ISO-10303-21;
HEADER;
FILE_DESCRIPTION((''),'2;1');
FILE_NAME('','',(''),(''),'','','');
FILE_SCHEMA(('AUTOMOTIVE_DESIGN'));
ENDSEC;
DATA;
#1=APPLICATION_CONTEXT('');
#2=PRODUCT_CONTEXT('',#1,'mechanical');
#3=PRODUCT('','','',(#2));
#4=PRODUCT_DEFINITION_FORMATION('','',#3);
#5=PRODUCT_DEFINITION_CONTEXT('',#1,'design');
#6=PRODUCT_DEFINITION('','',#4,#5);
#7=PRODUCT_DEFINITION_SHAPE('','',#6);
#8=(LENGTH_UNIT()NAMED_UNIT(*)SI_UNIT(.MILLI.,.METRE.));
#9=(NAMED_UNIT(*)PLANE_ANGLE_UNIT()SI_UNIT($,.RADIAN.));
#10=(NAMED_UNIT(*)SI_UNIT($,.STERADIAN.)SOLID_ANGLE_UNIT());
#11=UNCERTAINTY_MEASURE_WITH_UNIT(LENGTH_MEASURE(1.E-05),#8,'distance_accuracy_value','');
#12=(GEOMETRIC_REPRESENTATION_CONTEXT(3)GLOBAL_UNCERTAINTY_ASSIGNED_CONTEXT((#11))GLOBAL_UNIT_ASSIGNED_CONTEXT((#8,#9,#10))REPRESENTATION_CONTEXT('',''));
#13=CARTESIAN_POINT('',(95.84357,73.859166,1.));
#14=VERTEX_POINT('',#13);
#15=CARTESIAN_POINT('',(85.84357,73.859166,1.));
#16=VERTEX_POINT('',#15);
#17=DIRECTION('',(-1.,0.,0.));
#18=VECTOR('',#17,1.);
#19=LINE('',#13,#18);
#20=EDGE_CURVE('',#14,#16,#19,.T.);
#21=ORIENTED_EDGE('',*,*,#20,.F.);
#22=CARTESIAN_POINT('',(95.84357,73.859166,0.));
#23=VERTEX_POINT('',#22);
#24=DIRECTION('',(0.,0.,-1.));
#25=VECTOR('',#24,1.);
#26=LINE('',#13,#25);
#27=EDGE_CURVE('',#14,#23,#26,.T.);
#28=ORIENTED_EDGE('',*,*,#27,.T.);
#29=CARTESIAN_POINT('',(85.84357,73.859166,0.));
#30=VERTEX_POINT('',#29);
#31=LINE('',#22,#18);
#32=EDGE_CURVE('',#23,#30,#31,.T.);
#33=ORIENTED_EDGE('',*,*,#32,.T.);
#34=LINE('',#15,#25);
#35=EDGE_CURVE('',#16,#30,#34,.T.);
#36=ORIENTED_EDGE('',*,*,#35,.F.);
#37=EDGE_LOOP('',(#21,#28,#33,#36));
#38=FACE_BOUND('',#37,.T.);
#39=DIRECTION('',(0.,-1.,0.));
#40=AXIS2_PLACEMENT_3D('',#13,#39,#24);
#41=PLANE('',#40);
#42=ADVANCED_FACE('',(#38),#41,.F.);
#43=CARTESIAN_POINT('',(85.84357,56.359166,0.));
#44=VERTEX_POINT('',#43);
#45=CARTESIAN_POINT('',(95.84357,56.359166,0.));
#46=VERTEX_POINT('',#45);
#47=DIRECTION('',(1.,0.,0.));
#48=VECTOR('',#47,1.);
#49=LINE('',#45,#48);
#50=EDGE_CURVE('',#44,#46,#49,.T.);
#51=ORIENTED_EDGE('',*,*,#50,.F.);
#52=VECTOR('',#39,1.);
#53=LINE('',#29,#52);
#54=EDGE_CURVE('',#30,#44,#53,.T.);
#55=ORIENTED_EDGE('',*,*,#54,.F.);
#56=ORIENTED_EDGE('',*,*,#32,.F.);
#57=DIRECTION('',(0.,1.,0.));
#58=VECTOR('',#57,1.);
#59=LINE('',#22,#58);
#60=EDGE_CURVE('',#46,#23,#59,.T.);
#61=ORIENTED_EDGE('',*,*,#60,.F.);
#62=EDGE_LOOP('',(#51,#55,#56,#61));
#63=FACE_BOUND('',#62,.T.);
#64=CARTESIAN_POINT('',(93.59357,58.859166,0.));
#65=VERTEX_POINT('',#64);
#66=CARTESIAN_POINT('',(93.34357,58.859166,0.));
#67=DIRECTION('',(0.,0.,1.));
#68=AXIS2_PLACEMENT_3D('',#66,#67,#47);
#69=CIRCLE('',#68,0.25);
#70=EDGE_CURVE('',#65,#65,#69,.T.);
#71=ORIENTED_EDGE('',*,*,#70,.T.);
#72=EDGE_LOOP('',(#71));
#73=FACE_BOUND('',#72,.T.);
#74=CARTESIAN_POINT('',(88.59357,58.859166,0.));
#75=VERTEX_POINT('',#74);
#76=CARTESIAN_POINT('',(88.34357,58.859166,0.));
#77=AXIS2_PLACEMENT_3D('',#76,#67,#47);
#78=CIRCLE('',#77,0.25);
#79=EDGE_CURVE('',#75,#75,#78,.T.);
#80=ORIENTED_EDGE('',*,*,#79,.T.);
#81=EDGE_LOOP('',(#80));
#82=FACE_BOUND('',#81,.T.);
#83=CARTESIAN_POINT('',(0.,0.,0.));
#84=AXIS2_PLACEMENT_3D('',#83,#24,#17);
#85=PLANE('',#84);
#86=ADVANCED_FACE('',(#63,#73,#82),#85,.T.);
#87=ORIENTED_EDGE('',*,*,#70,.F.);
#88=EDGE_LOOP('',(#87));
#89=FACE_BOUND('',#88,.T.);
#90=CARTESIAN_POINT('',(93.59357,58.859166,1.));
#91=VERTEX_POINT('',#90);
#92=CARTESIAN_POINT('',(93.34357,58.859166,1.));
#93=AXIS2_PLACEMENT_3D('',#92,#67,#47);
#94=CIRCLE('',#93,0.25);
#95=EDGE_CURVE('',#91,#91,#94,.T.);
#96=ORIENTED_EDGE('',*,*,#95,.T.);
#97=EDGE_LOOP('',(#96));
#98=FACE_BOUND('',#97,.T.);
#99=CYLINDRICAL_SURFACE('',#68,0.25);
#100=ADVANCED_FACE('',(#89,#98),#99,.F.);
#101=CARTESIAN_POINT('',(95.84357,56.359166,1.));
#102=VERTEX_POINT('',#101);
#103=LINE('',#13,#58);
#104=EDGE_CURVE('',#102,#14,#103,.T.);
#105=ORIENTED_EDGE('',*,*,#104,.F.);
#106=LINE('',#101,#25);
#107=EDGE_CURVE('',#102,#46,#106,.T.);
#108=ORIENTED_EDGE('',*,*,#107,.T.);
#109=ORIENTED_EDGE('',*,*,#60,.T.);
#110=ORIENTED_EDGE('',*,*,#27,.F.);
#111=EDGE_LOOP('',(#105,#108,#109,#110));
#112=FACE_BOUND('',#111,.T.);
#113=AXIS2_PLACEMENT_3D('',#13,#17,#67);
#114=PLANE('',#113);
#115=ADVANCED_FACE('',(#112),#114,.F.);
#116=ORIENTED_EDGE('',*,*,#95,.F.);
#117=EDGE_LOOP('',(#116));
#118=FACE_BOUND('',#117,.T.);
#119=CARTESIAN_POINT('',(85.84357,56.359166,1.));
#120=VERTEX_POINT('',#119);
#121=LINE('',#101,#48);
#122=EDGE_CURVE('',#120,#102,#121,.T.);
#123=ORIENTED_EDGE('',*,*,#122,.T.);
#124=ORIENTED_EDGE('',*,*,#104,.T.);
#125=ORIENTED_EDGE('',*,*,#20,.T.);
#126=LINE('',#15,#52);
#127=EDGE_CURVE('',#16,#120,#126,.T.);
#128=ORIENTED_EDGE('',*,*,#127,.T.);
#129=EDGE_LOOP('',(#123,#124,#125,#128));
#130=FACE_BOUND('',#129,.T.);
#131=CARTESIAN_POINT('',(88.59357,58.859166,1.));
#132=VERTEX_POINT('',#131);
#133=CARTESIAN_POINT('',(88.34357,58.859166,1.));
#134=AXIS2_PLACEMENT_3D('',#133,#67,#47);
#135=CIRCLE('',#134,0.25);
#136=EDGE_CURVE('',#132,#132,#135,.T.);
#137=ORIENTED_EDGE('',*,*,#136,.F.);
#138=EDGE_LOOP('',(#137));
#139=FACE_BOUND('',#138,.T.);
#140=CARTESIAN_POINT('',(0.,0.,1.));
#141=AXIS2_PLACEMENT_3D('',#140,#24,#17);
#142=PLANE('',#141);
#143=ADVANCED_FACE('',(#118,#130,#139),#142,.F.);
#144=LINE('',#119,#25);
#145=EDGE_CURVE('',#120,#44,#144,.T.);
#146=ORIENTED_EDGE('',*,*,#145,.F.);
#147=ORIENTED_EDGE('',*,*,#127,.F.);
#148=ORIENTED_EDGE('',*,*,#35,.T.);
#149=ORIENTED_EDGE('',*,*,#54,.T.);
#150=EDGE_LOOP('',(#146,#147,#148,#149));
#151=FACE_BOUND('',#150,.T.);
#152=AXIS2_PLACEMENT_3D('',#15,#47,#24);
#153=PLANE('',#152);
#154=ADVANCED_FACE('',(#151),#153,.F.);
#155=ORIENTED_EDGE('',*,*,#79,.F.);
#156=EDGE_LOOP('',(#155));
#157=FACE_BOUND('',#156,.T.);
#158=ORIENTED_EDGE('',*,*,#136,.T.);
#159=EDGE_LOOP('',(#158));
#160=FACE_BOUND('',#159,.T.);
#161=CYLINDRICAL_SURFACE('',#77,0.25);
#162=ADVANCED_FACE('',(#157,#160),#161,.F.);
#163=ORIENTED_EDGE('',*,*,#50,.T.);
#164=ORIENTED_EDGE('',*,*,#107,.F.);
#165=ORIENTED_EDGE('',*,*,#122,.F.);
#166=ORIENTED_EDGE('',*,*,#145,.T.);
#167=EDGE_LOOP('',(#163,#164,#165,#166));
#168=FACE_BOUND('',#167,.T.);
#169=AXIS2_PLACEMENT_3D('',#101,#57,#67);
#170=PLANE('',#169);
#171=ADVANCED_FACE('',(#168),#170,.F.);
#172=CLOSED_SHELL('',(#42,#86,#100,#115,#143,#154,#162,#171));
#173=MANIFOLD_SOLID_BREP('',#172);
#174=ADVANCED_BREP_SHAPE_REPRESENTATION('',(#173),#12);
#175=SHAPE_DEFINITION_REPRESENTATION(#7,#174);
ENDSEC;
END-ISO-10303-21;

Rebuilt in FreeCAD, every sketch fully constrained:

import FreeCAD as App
import Part
import Sketcher
from FreeCAD import Vector


def add_polygon(sketch, points):
    """Adds a closed chain of lines whose ends are joined by coincident constraints."""
    first, n = sketch.GeometryCount, len(points)
    for a, b in zip(points, points[1:] + points[:1]):
        sketch.addGeometry(Part.LineSegment(App.Vector(*a, 0), App.Vector(*b, 0)), False)
    for i in range(n):
        sketch.addConstraint(Sketcher.Constraint("Coincident", first + i, 2, first + (i + 1) % n, 1))

doc = App.newDocument("Part")
params = doc.addObject("Spreadsheet::Sheet", "Params")
for row, (alias, value) in enumerate([
    ("sketch1_width", "10 mm"),
    ("sketch1_height", "17.5 mm"),
    ("pad1_length", "1 mm"),
    ("sketch2_diameter", "0.5 mm"),
], start=1):
    params.set(f"A{row}", alias)
    params.set(f"B{row}", "=" + value)
    params.setAlias(f"B{row}", alias)

body = doc.addObject("PartDesign::Body", "Body")

sketch1 = body.newObject("Sketcher::SketchObject", "Sketch")
sketch1.AttachmentSupport = (doc.getObject("XY_Plane"), [""])
sketch1.MapMode = "FlatFace"
add_polygon(sketch1, [(86, 74), (86, 56), (96, 56), (96, 74)])
sketch1.addConstraint(Sketcher.Constraint("Vertical", 0))
sketch1.addConstraint(Sketcher.Constraint("Horizontal", 1))
sketch1.addConstraint(Sketcher.Constraint("Vertical", 2))
sketch1.addConstraint(Sketcher.Constraint("Horizontal", 3))
sketch1.addConstraint(Sketcher.Constraint("DistanceX", 1, 1, 1, 2, 10.0))
sketch1.addConstraint(Sketcher.Constraint("DistanceY", 0, 2, 0, 1, 17.5))
sketch1.addConstraint(Sketcher.Constraint("DistanceX", -1, 1, 0, 2, 85.84357))
sketch1.addConstraint(Sketcher.Constraint("DistanceY", -1, 1, 0, 2, 56.359166))
sketch1.setExpression("Constraints[8]", "Params.sketch1_width")
sketch1.setExpression("Constraints[9]", "Params.sketch1_height")
pad1 = body.newObject("PartDesign::Pad", "Pad")
pad1.Profile = sketch1
pad1.setExpression("Length", "Params.pad1_length")

sketch2 = body.newObject("Sketcher::SketchObject", "Sketch001")
sketch2.AttachmentSupport = (doc.getObject("XY_Plane"), [""])
sketch2.MapMode = "FlatFace"
sketch2.AttachmentOffset = App.Placement(Vector(0, 0, 1), App.Rotation())
sketch2.addGeometry(Part.Circle(Vector(88.34, 58.86, 0), Vector(0, 0, 1), 0.25), False)
sketch2.addGeometry(Part.Circle(Vector(93.34, 58.86, 0), Vector(0, 0, 1), 0.25), False)
sketch2.addConstraint(Sketcher.Constraint("Equal", 0, 1))
sketch2.addConstraint(Sketcher.Constraint("Horizontal", 0, 3, 1, 3))
sketch2.addConstraint(Sketcher.Constraint("Diameter", 0, 0.5))
sketch2.addConstraint(Sketcher.Constraint("DistanceX", 0, 3, 1, 3, 5.0))
sketch2.addConstraint(Sketcher.Constraint("DistanceX", -1, 1, 0, 3, 88.34357))
sketch2.addConstraint(Sketcher.Constraint("DistanceY", -1, 1, 0, 3, 58.859166))
sketch2.setExpression("Constraints[2]", "Params.sketch2_diameter")
pocket1 = body.newObject("PartDesign::Pocket", "Pocket")
pocket1.Profile = sketch2
pocket1.Type = "ThroughAll"

doc.recompute()
